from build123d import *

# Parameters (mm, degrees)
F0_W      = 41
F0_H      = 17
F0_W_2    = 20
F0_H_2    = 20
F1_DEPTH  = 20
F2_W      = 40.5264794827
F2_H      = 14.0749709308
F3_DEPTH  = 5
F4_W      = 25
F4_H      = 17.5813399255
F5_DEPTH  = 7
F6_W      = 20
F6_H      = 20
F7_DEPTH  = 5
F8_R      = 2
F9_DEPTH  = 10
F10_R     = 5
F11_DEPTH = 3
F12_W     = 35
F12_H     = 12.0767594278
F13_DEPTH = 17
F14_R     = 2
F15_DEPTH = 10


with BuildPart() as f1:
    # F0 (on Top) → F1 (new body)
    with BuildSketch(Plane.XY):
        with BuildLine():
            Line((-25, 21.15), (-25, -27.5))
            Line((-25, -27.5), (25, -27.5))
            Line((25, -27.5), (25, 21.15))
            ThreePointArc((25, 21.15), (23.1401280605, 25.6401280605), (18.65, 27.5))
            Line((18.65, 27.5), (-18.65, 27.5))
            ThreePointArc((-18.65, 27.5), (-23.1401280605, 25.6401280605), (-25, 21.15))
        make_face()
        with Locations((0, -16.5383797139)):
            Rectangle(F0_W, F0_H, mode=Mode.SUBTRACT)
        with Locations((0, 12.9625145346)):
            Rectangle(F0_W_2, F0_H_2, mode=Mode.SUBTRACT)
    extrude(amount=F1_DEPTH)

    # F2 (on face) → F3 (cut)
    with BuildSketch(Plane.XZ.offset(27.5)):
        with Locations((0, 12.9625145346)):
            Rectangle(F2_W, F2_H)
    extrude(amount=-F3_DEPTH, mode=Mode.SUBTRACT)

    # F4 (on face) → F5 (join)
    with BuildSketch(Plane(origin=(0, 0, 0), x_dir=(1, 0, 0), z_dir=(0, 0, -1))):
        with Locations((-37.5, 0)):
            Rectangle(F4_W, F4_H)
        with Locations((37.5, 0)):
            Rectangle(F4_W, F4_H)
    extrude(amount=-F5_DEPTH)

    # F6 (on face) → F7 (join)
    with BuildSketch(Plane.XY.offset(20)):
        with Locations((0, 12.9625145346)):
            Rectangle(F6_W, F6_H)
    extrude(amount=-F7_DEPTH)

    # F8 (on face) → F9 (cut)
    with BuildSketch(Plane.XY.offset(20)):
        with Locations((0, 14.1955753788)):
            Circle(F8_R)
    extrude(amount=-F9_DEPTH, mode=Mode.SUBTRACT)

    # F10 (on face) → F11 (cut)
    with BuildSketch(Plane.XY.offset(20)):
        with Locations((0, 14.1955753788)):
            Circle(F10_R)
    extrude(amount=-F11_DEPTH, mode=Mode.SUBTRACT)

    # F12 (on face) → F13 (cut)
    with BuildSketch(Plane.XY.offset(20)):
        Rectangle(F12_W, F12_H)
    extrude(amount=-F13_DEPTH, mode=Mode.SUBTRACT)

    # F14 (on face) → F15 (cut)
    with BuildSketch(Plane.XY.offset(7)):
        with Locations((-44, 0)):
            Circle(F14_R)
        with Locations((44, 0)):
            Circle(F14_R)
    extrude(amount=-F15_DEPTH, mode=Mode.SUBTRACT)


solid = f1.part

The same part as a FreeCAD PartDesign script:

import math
import FreeCAD as App
import Part
import Sketcher

V = App.Vector
Q = App.Units.Quantity

doc = App.newDocument("Part")
params = doc.addObject("Spreadsheet::Sheet", "Params")
for row, (alias, value) in enumerate([
    ("sketch1_width", "50 mm"),
    ("sketch1_width2", "41 mm"),
    ("sketch1_width3", "20 mm"),
    ("sketch1_height", "17 mm"),
    ("sketch1_radius", "6.35 mm"),
    ("pad1_length", "20 mm"),
    ("pocket1_length", "5 mm"),
    ("sketch3_width", "25 mm"),
    ("pad2_length", "7 mm"),
    ("sketch4_width", "20 mm"),
    ("pad3_length", "5 mm"),
    ("sketch5_diameter", "4 mm"),
    ("pocket2_length", "10 mm"),
    ("sketch6_diameter", "10 mm"),
    ("pocket3_length", "3 mm"),
    ("sketch7_width", "35 mm"),
    ("pocket4_length", "17 mm"),
    ("sketch8_diameter", "4 mm"),
    ("pocket5_length", "10 mm"),
], start=1):
    params.set(f"A{row}", alias)
    params.set(f"B{row}", "=" + value)
    params.setAlias(f"B{row}", alias)

body = doc.addObject("PartDesign::Body", "Body")

sketch1 = body.newObject("Sketcher::SketchObject", "Sketch")
sketch1.AttachmentSupport = (doc.getObject("XY_Plane"), [""])
sketch1.MapMode = "FlatFace"
sketch1.addGeometry([
    Part.LineSegment(V(-25, 21.15, 0), V(-25, -27.5, 0)),
    Part.LineSegment(V(-25, -27.5, 0), V(25, -27.5, 0)),
    Part.LineSegment(V(25, -27.5, 0), V(25, 21.15, 0)),
    Part.ArcOfCircle(Part.Circle(V(18.65, 21.15, 0), V(0, 0, 1), 6.35), math.radians(0), math.radians(90)),
    Part.LineSegment(V(18.65, 27.5, 0), V(-18.65, 27.5, 0)),
    Part.ArcOfCircle(Part.Circle(V(-18.65, 21.15, 0), V(0, 0, 1), 6.35), math.radians(90), math.radians(180)),
    Part.LineSegment(V(20.5, -25.03838, 0), V(-20.5, -25.03838, 0)),
    Part.LineSegment(V(-20.5, -25.03838, 0), V(-20.5, -8.03838, 0)),
    Part.LineSegment(V(-20.5, -8.03838, 0), V(20.5, -8.03838, 0)),
    Part.LineSegment(V(20.5, -8.03838, 0), V(20.5, -25.03838, 0)),
    Part.LineSegment(V(10, 2.962515, 0), V(-10, 2.962515, 0)),
    Part.LineSegment(V(-10, 2.962515, 0), V(-10, 22.962515, 0)),
    Part.LineSegment(V(-10, 22.962515, 0), V(10, 22.962515, 0)),
    Part.LineSegment(V(10, 22.962515, 0), V(10, 2.962515, 0)),
], False)
sketch1.addConstraint([
    Sketcher.Constraint("Coincident", 0, 2, 1, 1),
    Sketcher.Constraint("Coincident", 1, 2, 2, 1),
    Sketcher.Constraint("Tangent", 2, 2, 3, 1),
    Sketcher.Constraint("Tangent", 3, 2, 4, 1),
    Sketcher.Constraint("Tangent", 4, 2, 5, 1),
    Sketcher.Constraint("Tangent", 5, 2, 0, 1),
    Sketcher.Constraint("Coincident", 6, 2, 7, 1),
    Sketcher.Constraint("Coincident", 7, 2, 8, 1),
    Sketcher.Constraint("Coincident", 8, 2, 9, 1),
    Sketcher.Constraint("Coincident", 9, 2, 6, 1),
    Sketcher.Constraint("Coincident", 10, 2, 11, 1),
    Sketcher.Constraint("Coincident", 11, 2, 12, 1),
    Sketcher.Constraint("Coincident", 12, 2, 13, 1),
    Sketcher.Constraint("Coincident", 13, 2, 10, 1),
    Sketcher.Constraint("Vertical", 0),
    Sketcher.Constraint("Horizontal", 1),
    Sketcher.Constraint("Vertical", 2),
    Sketcher.Constraint("Horizontal", 4),
    Sketcher.Constraint("Horizontal", 6),
    Sketcher.Constraint("Vertical", 7),
    Sketcher.Constraint("Horizontal", 8),
    Sketcher.Constraint("Vertical", 9),
    Sketcher.Constraint("Horizontal", 10),
    Sketcher.Constraint("Vertical", 11),
    Sketcher.Constraint("Horizontal", 12),
    Sketcher.Constraint("Vertical", 13),
    Sketcher.Constraint("Equal", 3, 5),
    Sketcher.Constraint("Equal", 12, 11),
    Sketcher.Constraint("DistanceX", 1, 1, 1, 2, Q("50 mm")),
    Sketcher.Constraint("DistanceX", 6, 2, 6, 1, Q("41 mm")),
    Sketcher.Constraint("DistanceX", 10, 2, 10, 1, Q("20 mm")),
    Sketcher.Constraint("DistanceY", 7, 1, 7, 2, Q("17 mm")),
    Sketcher.Constraint("Radius", 3, Q("6.35 mm")),
    Sketcher.Constraint("DistanceX", 0, 2, -1, 1, Q("25 mm")),
    Sketcher.Constraint("DistanceX", 10, 2, -1, 1, Q("10 mm")),
    Sketcher.Constraint("DistanceY", 1, 2, 3, 2, Q("55 mm")),
    Sketcher.Constraint("DistanceY", 0, 2, -1, 1, Q("27.5 mm")),
    Sketcher.Constraint("DistanceX", 6, 2, -1, 1, Q("20.5 mm")),
    Sketcher.Constraint("DistanceY", 6, 2, -1, 1, Q("25.03838 mm")),
    Sketcher.Constraint("DistanceY", -1, 1, 10, 2, Q("2.962515 mm")),
])
sketch1.setExpression("Constraints[28]", "Params.sketch1_width")
sketch1.setExpression("Constraints[29]", "Params.sketch1_width2")
sketch1.setExpression("Constraints[30]", "Params.sketch1_width3")
sketch1.setExpression("Constraints[31]", "Params.sketch1_height")
sketch1.setExpression("Constraints[32]", "Params.sketch1_radius")
pad1 = body.newObject("PartDesign::Pad", "Pad")
pad1.Profile = sketch1
pad1.setExpression("Length", "Params.pad1_length")

sketch2 = body.newObject("Sketcher::SketchObject", "Sketch001")
sketch2.AttachmentSupport = (doc.getObject("XZ_Plane"), [""])
sketch2.MapMode = "FlatFace"
sketch2.AttachmentOffset = App.Placement(V(0, 0, 27.5), App.Rotation())
sketch2.addGeometry([
    Part.LineSegment(V(-20.26324, 20, 0), V(-20.26324, 5.925029, 0)),
    Part.LineSegment(V(-20.26324, 5.925029, 0), V(20.26324, 5.925029, 0)),
    Part.LineSegment(V(20.26324, 5.925029, 0), V(20.26324, 20, 0)),
    Part.LineSegment(V(20.26324, 20, 0), V(-20.26324, 20, 0)),
], False)
sketch2.addConstraint([
    Sketcher.Constraint("Coincident", 0, 2, 1, 1),
    Sketcher.Constraint("Coincident", 1, 2, 2, 1),
    Sketcher.Constraint("Coincident", 2, 2, 3, 1),
    Sketcher.Constraint("Coincident", 3, 2, 0, 1),
    Sketcher.Constraint("Vertical", 0),
    Sketcher.Constraint("Horizontal", 1),
    Sketcher.Constraint("Vertical", 2),
    Sketcher.Constraint("Horizontal", 3),
    Sketcher.Constraint("DistanceY", -1, 1, 2, 2, Q("20 mm")),
    Sketcher.Constraint("DistanceX", 1, 1, 1, 2, Q("40.526479 mm")),
    Sketcher.Constraint("DistanceY", 0, 2, 0, 1, Q("14.074971 mm")),
    Sketcher.Constraint("DistanceX", 0, 2, -1, 1, Q("20.26324 mm")),
])
pocket1 = body.newObject("PartDesign::Pocket", "Pocket")
pocket1.Profile = sketch2
pocket1.setExpression("Length", "Params.pocket1_length")

sketch3 = body.newObject("Sketcher::SketchObject", "Sketch002")
sketch3.AttachmentSupport = (doc.getObject("XY_Plane"), [""])
sketch3.MapMode = "FlatFace"
sketch3.addGeometry([
    Part.LineSegment(V(-50, -8.79067, 0), V(-50, 8.79067, 0)),
    Part.LineSegment(V(-50, 8.79067, 0), V(-25, 8.79067, 0)),
    Part.LineSegment(V(-25, 8.79067, 0), V(-25, -8.79067, 0)),
    Part.LineSegment(V(-25, -8.79067, 0), V(-50, -8.79067, 0)),
    Part.LineSegment(V(25, -8.79067, 0), V(25, 8.79067, 0)),
    Part.LineSegment(V(25, 8.79067, 0), V(50, 8.79067, 0)),
    Part.LineSegment(V(50, 8.79067, 0), V(50, -8.79067, 0)),
    Part.LineSegment(V(50, -8.79067, 0), V(25, -8.79067, 0)),
], False)
sketch3.addConstraint([
    Sketcher.Constraint("Coincident", 0, 2, 1, 1),
    Sketcher.Constraint("Coincident", 1, 2, 2, 1),
    Sketcher.Constraint("Coincident", 2, 2, 3, 1),
    Sketcher.Constraint("Coincident", 3, 2, 0, 1),
    Sketcher.Constraint("Coincident", 4, 2, 5, 1),
    Sketcher.Constraint("Coincident", 5, 2, 6, 1),
    Sketcher.Constraint("Coincident", 6, 2, 7, 1),
    Sketcher.Constraint("Coincident", 7, 2, 4, 1),
    Sketcher.Constraint("Vertical", 0),
    Sketcher.Constraint("Horizontal", 1),
    Sketcher.Constraint("Vertical", 2),
    Sketcher.Constraint("Horizontal", 3),
    Sketcher.Constraint("Vertical", 4),
    Sketcher.Constraint("Horizontal", 5),
    Sketcher.Constraint("Vertical", 6),
    Sketcher.Constraint("Horizontal", 7),
    Sketcher.Constraint("Symmetric", 2, 2, 4, 2, -1, 1),
    Sketcher.Constraint("Symmetric", 0, 2, 6, 2, -1, 1),
    Sketcher.Constraint("Horizontal", 1, 2, 4, 2),
    Sketcher.Constraint("DistanceX", 1, 1, 1, 2, Q("25 mm")),
    Sketcher.Constraint("DistanceX", 0, 2, -1, 1, Q("50 mm")),
    Sketcher.Constraint("DistanceY", 0, 1, 0, 2, Q("17.58134 mm")),
])
sketch3.setExpression("Constraints[19]", "Params.sketch3_width")
pad2 = body.newObject("PartDesign::Pad", "Pad001")
pad2.Profile = sketch3
pad2.setExpression("Length", "Params.pad2_length")

sketch4 = body.newObject("Sketcher::SketchObject", "Sketch003")
sketch4.AttachmentSupport = (doc.getObject("XY_Plane"), [""])
sketch4.MapMode = "FlatFace"
sketch4.AttachmentOffset = App.Placement(V(0, 0, 20), App.Rotation())
sketch4.addGeometry([
    Part.LineSegment(V(-10, 22.962515, 0), V(-10, 2.962515, 0)),
    Part.LineSegment(V(-10, 2.962515, 0), V(10, 2.962515, 0)),
    Part.LineSegment(V(10, 2.962515, 0), V(10, 22.962515, 0)),
    Part.LineSegment(V(10, 22.962515, 0), V(-10, 22.962515, 0)),
], False)
sketch4.addConstraint([
    Sketcher.Constraint("Coincident", 0, 2, 1, 1),
    Sketcher.Constraint("Coincident", 1, 2, 2, 1),
    Sketcher.Constraint("Coincident", 2, 2, 3, 1),
    Sketcher.Constraint("Coincident", 3, 2, 0, 1),
    Sketcher.Constraint("Vertical", 0),
    Sketcher.Constraint("Horizontal", 1),
    Sketcher.Constraint("Vertical", 2),
    Sketcher.Constraint("Horizontal", 3),
    Sketcher.Constraint("Equal", 3, 0),
    Sketcher.Constraint("DistanceX", 1, 1, 1, 2, Q("20 mm")),
    Sketcher.Constraint("DistanceX", 0, 2, -1, 1, Q("10 mm")),
    Sketcher.Constraint("DistanceY", -1, 1, 0, 2, Q("2.962515 mm")),
])
sketch4.setExpression("Constraints[9]", "Params.sketch4_width")
pad3 = body.newObject("PartDesign::Pad", "Pad002")
pad3.Profile = sketch4
pad3.setExpression("Length", "Params.pad3_length")
pad3.Reversed = True

sketch5 = body.newObject("Sketcher::SketchObject", "Sketch004")
sketch5.AttachmentSupport = (doc.getObject("XY_Plane"), [""])
sketch5.MapMode = "FlatFace"
sketch5.AttachmentOffset = App.Placement(V(0, 0, 20), App.Rotation())
sketch5.addGeometry(Part.Circle(V(0, 14.195575, 0), V(0, 0, 1), 2), False)
sketch5.addConstraint([
    Sketcher.Constraint("PointOnObject", 0, 3, -2),
    Sketcher.Constraint("Diameter", 0, Q("4 mm")),
    Sketcher.Constraint("DistanceY", -1, 1, 0, 3, Q("14.195575 mm")),
])
sketch5.setExpression("Constraints[1]", "Params.sketch5_diameter")
pocket2 = body.newObject("PartDesign::Pocket", "Pocket001")
pocket2.Profile = sketch5
pocket2.setExpression("Length", "Params.pocket2_length")

sketch6 = body.newObject("Sketcher::SketchObject", "Sketch005")
sketch6.AttachmentSupport = (doc.getObject("XY_Plane"), [""])
sketch6.MapMode = "FlatFace"
sketch6.AttachmentOffset = App.Placement(V(0, 0, 20), App.Rotation())
sketch6.addGeometry(Part.Circle(V(0, 14.195575, 0), V(0, 0, 1), 5), False)
sketch6.addConstraint([
    Sketcher.Constraint("PointOnObject", 0, 3, -2),
    Sketcher.Constraint("Diameter", 0, Q("10 mm")),
    Sketcher.Constraint("DistanceY", -1, 1, 0, 3, Q("14.195575 mm")),
])
sketch6.setExpression("Constraints[1]", "Params.sketch6_diameter")
pocket3 = body.newObject("PartDesign::Pocket", "Pocket002")
pocket3.Profile = sketch6
pocket3.setExpression("Length", "Params.pocket3_length")

sketch7 = body.newObject("Sketcher::SketchObject", "Sketch006")
sketch7.AttachmentSupport = (doc.getObject("XY_Plane"), [""])
sketch7.MapMode = "FlatFace"
sketch7.AttachmentOffset = App.Placement(V(0, 0, 20), App.Rotation())
sketch7.addGeometry([
    Part.LineSegment(V(-17.5, 6.03838, 0), V(-17.5, -6.03838, 0)),
    Part.LineSegment(V(-17.5, -6.03838, 0), V(17.5, -6.03838, 0)),
    Part.LineSegment(V(17.5, -6.03838, 0), V(17.5, 6.03838, 0)),
    Part.LineSegment(V(17.5, 6.03838, 0), V(-17.5, 6.03838, 0)),
], False)
sketch7.addConstraint([
    Sketcher.Constraint("Coincident", 0, 2, 1, 1),
    Sketcher.Constraint("Coincident", 1, 2, 2, 1),
    Sketcher.Constraint("Coincident", 2, 2, 3, 1),
    Sketcher.Constraint("Coincident", 3, 2, 0, 1),
    Sketcher.Constraint("Vertical", 0),
    Sketcher.Constraint("Horizontal", 1),
    Sketcher.Constraint("Vertical", 2),
    Sketcher.Constraint("Horizontal", 3),
    Sketcher.Constraint("Symmetric", 0, 2, 2, 2, -1, 1),
    Sketcher.Constraint("DistanceX", 1, 1, 1, 2, Q("35 mm")),
    Sketcher.Constraint("DistanceY", 0, 2, 0, 1, Q("12.076759 mm")),
])
sketch7.setExpression("Constraints[9]", "Params.sketch7_width")
pocket4 = body.newObject("PartDesign::Pocket", "Pocket003")
pocket4.Profile = sketch7
pocket4.setExpression("Length", "Params.pocket4_length")

sketch8 = body.newObject("Sketcher::SketchObject", "Sketch007")
sketch8.AttachmentSupport = (doc.getObject("XY_Plane"), [""])
sketch8.MapMode = "FlatFace"
sketch8.AttachmentOffset = App.Placement(V(0, 0, 7), App.Rotation())
sketch8.addGeometry([
    Part.Circle(V(-44, 0, 0), V(0, 0, 1), 2),
    Part.Circle(V(44, 0, 0), V(0, 0, 1), 2),
], False)
sketch8.addConstraint([
    Sketcher.Constraint("Equal", 0, 1),
    Sketcher.Constraint("Symmetric", 0, 3, 1, 3, -1, 1),
    Sketcher.Constraint("PointOnObject", 0, 3, -1),
    Sketcher.Constraint("Diameter", 0, Q("4 mm")),
    Sketcher.Constraint("DistanceX", 0, 3, -1, 1, Q("44 mm")),
])
sketch8.setExpression("Constraints[3]", "Params.sketch8_diameter")
pocket5 = body.newObject("PartDesign::Pocket", "Pocket004")
pocket5.Profile = sketch8
pocket5.setExpression("Length", "Params.pocket5_length")

doc.recompute()
